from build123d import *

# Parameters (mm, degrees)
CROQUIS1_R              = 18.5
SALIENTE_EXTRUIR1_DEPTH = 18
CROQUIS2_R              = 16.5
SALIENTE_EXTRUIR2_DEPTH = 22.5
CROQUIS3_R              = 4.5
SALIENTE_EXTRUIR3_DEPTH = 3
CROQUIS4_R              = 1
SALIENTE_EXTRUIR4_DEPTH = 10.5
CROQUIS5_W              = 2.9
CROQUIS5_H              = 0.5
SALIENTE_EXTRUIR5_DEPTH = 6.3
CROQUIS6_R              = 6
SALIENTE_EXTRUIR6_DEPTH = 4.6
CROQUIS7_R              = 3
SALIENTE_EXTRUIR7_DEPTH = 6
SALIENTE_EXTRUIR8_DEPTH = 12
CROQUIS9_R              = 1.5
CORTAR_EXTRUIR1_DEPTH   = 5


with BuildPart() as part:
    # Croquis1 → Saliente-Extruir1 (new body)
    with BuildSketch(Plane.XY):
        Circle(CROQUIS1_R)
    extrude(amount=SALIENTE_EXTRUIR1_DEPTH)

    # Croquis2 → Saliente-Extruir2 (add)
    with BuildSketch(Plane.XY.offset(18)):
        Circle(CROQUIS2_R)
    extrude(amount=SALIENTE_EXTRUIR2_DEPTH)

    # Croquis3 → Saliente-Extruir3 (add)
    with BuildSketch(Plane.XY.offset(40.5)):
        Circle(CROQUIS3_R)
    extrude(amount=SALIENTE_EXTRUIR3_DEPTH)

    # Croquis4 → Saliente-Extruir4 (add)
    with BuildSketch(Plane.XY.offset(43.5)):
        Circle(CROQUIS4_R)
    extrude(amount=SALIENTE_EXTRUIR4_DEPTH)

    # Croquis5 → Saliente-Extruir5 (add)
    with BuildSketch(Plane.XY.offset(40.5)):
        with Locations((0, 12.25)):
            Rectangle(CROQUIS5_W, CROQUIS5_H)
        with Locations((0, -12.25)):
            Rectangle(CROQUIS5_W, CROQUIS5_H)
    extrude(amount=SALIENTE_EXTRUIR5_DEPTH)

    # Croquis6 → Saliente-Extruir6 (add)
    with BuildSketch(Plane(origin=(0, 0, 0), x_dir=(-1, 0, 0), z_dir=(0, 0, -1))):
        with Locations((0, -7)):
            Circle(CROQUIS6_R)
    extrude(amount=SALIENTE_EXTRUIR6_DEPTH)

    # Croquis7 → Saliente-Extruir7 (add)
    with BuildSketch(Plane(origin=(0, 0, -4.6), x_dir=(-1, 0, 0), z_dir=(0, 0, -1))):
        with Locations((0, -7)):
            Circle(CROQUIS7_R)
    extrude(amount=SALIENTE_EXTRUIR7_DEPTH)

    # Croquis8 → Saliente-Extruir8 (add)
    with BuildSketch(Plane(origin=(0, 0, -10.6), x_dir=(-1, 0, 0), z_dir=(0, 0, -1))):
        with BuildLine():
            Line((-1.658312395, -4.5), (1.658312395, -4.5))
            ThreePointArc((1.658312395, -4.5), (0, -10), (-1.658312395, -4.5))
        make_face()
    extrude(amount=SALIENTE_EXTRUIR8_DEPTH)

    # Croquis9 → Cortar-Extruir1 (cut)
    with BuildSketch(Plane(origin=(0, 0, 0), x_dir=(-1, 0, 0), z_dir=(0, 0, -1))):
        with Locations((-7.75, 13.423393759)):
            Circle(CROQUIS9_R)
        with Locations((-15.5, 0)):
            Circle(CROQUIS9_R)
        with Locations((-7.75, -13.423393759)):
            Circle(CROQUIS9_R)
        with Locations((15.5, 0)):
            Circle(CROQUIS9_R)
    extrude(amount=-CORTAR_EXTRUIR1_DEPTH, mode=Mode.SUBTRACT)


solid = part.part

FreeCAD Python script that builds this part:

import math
import FreeCAD as App
import Part
import Sketcher

V = App.Vector

doc = App.newDocument("Part")
body = doc.addObject("PartDesign::Body", "Body")

# Sketch on XY plane
sketch1 = body.newObject("Sketcher::SketchObject", "Sketch")
sketch1.AttachmentSupport = (doc.getObject("XY_Plane"), [""])
sketch1.MapMode = "FlatFace"
sketch1.addGeometry(Part.Circle(V(0, 0, 0), V(0, 0, 1), 18.5), False)
sketch1.addConstraint(Sketcher.Constraint("Coincident", 0, 3, -1, 1))
sketch1.addConstraint(Sketcher.Constraint("Diameter", 0, 37.0))
pad1 = body.newObject("PartDesign::Pad", "Pad")
pad1.Profile = sketch1
pad1.Length = 18

# Sketch on XY plane
sketch2 = body.newObject("Sketcher::SketchObject", "Sketch001")
sketch2.AttachmentSupport = (doc.getObject("XY_Plane"), [""])
sketch2.MapMode = "FlatFace"
sketch2.AttachmentOffset = App.Placement(V(0, 0, 18), App.Rotation())
sketch2.addGeometry(Part.Circle(V(0, 0, 0), V(0, 0, 1), 16.5), False)
sketch2.addConstraint(Sketcher.Constraint("Coincident", 0, 3, -1, 1))
sketch2.addConstraint(Sketcher.Constraint("Diameter", 0, 33.0))
pad2 = body.newObject("PartDesign::Pad", "Pad001")
pad2.Profile = sketch2
pad2.Length = 22.5

# Sketch on XY plane
sketch3 = body.newObject("Sketcher::SketchObject", "Sketch002")
sketch3.AttachmentSupport = (doc.getObject("XY_Plane"), [""])
sketch3.MapMode = "FlatFace"
sketch3.AttachmentOffset = App.Placement(V(0, 0, 40.5), App.Rotation())
sketch3.addGeometry(Part.Circle(V(0, 0, 0), V(0, 0, 1), 4.5), False)
sketch3.addConstraint(Sketcher.Constraint("Coincident", 0, 3, -1, 1))
sketch3.addConstraint(Sketcher.Constraint("Diameter", 0, 9.0))
pad3 = body.newObject("PartDesign::Pad", "Pad002")
pad3.Profile = sketch3
pad3.Length = 3

# Sketch on XY plane
sketch4 = body.newObject("Sketcher::SketchObject", "Sketch003")
sketch4.AttachmentSupport = (doc.getObject("XY_Plane"), [""])
sketch4.MapMode = "FlatFace"
sketch4.AttachmentOffset = App.Placement(V(0, 0, 43.5), App.Rotation())
sketch4.addGeometry(Part.Circle(V(0, 0, 0), V(0, 0, 1), 1), False)
sketch4.addConstraint(Sketcher.Constraint("Coincident", 0, 3, -1, 1))
sketch4.addConstraint(Sketcher.Constraint("Diameter", 0, 2.0))
pad4 = body.newObject("PartDesign::Pad", "Pad003")
pad4.Profile = sketch4
pad4.Length = 10.5

# Sketch on XY plane
sketch5 = body.newObject("Sketcher::SketchObject", "Sketch004")
sketch5.AttachmentSupport = (doc.getObject("XY_Plane"), [""])
sketch5.MapMode = "FlatFace"
sketch5.AttachmentOffset = App.Placement(V(0, 0, 40.5), App.Rotation())
sketch5.addGeometry(Part.LineSegment(V(-1.45, 12.5, 0), V(-1.45, 12, 0)), False)
sketch5.addGeometry(Part.LineSegment(V(-1.45, 12, 0), V(1.45, 12, 0)), False)
sketch5.addGeometry(Part.LineSegment(V(1.45, 12, 0), V(1.45, 12.5, 0)), False)
sketch5.addGeometry(Part.LineSegment(V(1.45, 12.5, 0), V(-1.45, 12.5, 0)), False)
sketch5.addGeometry(Part.LineSegment(V(-1.45, -12, 0), V(-1.45, -12.5, 0)), False)
sketch5.addGeometry(Part.LineSegment(V(-1.45, -12.5, 0), V(1.45, -12.5, 0)), False)
sketch5.addGeometry(Part.LineSegment(V(1.45, -12.5, 0), V(1.45, -12, 0)), False)
sketch5.addGeometry(Part.LineSegment(V(1.45, -12, 0), V(-1.45, -12, 0)), False)
sketch5.addConstraint(Sketcher.Constraint("Coincident", 0, 2, 1, 1))
sketch5.addConstraint(Sketcher.Constraint("Coincident", 1, 2, 2, 1))
sketch5.addConstraint(Sketcher.Constraint("Coincident", 2, 2, 3, 1))
sketch5.addConstraint(Sketcher.Constraint("Coincident", 3, 2, 0, 1))
sketch5.addConstraint(Sketcher.Constraint("Coincident", 4, 2, 5, 1))
sketch5.addConstraint(Sketcher.Constraint("Coincident", 5, 2, 6, 1))
sketch5.addConstraint(Sketcher.Constraint("Coincident", 6, 2, 7, 1))
sketch5.addConstraint(Sketcher.Constraint("Coincident", 7, 2, 4, 1))
sketch5.addConstraint(Sketcher.Constraint("Vertical", 0))
sketch5.addConstraint(Sketcher.Constraint("Horizontal", 1))
sketch5.addConstraint(Sketcher.Constraint("Vertical", 2))
sketch5.addConstraint(Sketcher.Constraint("Horizontal", 3))
sketch5.addConstraint(Sketcher.Constraint("Vertical", 4))
sketch5.addConstraint(Sketcher.Constraint("Horizontal", 5))
sketch5.addConstraint(Sketcher.Constraint("Vertical", 6))
sketch5.addConstraint(Sketcher.Constraint("Horizontal", 7))
sketch5.addConstraint(Sketcher.Constraint("Symmetric", 2, 2, 4, 2, -1, 1))
sketch5.addConstraint(Sketcher.Constraint("Symmetric", 0, 2, 6, 2, -1, 1))
sketch5.addConstraint(Sketcher.Constraint("Vertical", 3, 2, 4, 2))
sketch5.addConstraint(Sketcher.Constraint("DistanceX", 1, 1, 1, 2, 2.9))
sketch5.addConstraint(Sketcher.Constraint("DistanceY", 0, 2, 0, 1, 0.5))
sketch5.addConstraint(Sketcher.Constraint("DistanceY", -1, 1, 0, 2, 12.0))
pad5 = body.newObject("PartDesign::Pad", "Pad004")
pad5.Profile = sketch5
pad5.Length = 6.3

# Sketch on XY plane
sketch6 = body.newObject("Sketcher::SketchObject", "Sketch005")
sketch6.AttachmentSupport = (doc.getObject("XY_Plane"), [""])
sketch6.MapMode = "FlatFace"
sketch6.addGeometry(Part.Circle(V(0, -7, 0), V(0, 0, 1), 6), False)
sketch6.addConstraint(Sketcher.Constraint("PointOnObject", 0, 3, -2))
sketch6.addConstraint(Sketcher.Constraint("Diameter", 0, 12.0))
sketch6.addConstraint(Sketcher.Constraint("DistanceY", 0, 3, -1, 1, 7.0))
pad6 = body.newObject("PartDesign::Pad", "Pad005")
pad6.Profile = sketch6
pad6.Length = 4.6
pad6.Reversed = True

# Sketch on XY plane
sketch7 = body.newObject("Sketcher::SketchObject", "Sketch006")
sketch7.AttachmentSupport = (doc.getObject("XY_Plane"), [""])
sketch7.MapMode = "FlatFace"
sketch7.AttachmentOffset = App.Placement(V(0, 0, -4.6), App.Rotation())
sketch7.addGeometry(Part.Circle(V(0, -7, 0), V(0, 0, 1), 3), False)
sketch7.addConstraint(Sketcher.Constraint("PointOnObject", 0, 3, -2))
sketch7.addConstraint(Sketcher.Constraint("Diameter", 0, 6.0))
sketch7.addConstraint(Sketcher.Constraint("DistanceY", 0, 3, -1, 1, 7.0))
pad7 = body.newObject("PartDesign::Pad", "Pad006")
pad7.Profile = sketch7
pad7.Length = 6
pad7.Reversed = True

# Sketch on XY plane
sketch8 = body.newObject("Sketcher::SketchObject", "Sketch007")
sketch8.AttachmentSupport = (doc.getObject("XY_Plane"), [""])
sketch8.MapMode = "FlatFace"
sketch8.AttachmentOffset = App.Placement(V(0, 0, -10.6), App.Rotation())
sketch8.addGeometry(Part.LineSegment(V(-1.658312, -4.5, 0), V(1.658312, -4.5, 0)), False)
sketch8.addGeometry(Part.ArcOfCircle(Part.Circle(V(0, -7, 0), V(0, 0, 1), 3), math.radians(123.55731), math.radians(416.44269)), False)
sketch8.addConstraint(Sketcher.Constraint("Coincident", 0, 1, 1, 1))
sketch8.addConstraint(Sketcher.Constraint("Coincident", 1, 2, 0, 2))
sketch8.addConstraint(Sketcher.Constraint("Horizontal", 0))
sketch8.addConstraint(Sketcher.Constraint("PointOnObject", 1, 3, -2))
sketch8.addConstraint(Sketcher.Constraint("Radius", 1, 3.0))
sketch8.addConstraint(Sketcher.Constraint("DistanceY", 1, 3, -1, 1, 7.0))
sketch8.addConstraint(Sketcher.Constraint("DistanceY", 0, 1, -1, 1, 4.5))
pad8 = body.newObject("PartDesign::Pad", "Pad007")
pad8.Profile = sketch8
pad8.Length = 12
pad8.Reversed = True

# Sketch on XY plane
sketch9 = body.newObject("Sketcher::SketchObject", "Sketch008")
sketch9.AttachmentSupport = (doc.getObject("XY_Plane"), [""])
sketch9.MapMode = "FlatFace"
sketch9.addGeometry(Part.Circle(V(7.75, 13.423394, 0), V(0, 0, 1), 1.5), False)
sketch9.addGeometry(Part.Circle(V(15.5, 0, 0), V(0, 0, 1), 1.5), False)
sketch9.addGeometry(Part.Circle(V(7.75, -13.423394, 0), V(0, 0, 1), 1.5), False)
sketch9.addGeometry(Part.Circle(V(-15.5, 0, 0), V(0, 0, 1), 1.5), False)
sketch9.addConstraint(Sketcher.Constraint("Equal", 0, 1))
sketch9.addConstraint(Sketcher.Constraint("Equal", 1, 2))
sketch9.addConstraint(Sketcher.Constraint("Equal", 2, 3))
sketch9.addConstraint(Sketcher.Constraint("Symmetric", 1, 3, 3, 3, -1, 1))
sketch9.addConstraint(Sketcher.Constraint("Symmetric", 0, 3, 2, 3, -1))
sketch9.addConstraint(Sketcher.Constraint("PointOnObject", 1, 3, -1))
sketch9.addConstraint(Sketcher.Constraint("Diameter", 0, 3.0))
sketch9.addConstraint(Sketcher.Constraint("DistanceX", 3, 3, 1, 3, 31.0))
sketch9.addConstraint(Sketcher.Constraint("DistanceX", -1, 1, 0, 3, 7.75))
sketch9.addConstraint(Sketcher.Constraint("DistanceY", -1, 1, 0, 3, 13.423394))
pocket1 = body.newObject("PartDesign::Pocket", "Pocket")
pocket1.Profile = sketch9
pocket1.Length = 5
pocket1.Reversed = True

doc.recompute()
